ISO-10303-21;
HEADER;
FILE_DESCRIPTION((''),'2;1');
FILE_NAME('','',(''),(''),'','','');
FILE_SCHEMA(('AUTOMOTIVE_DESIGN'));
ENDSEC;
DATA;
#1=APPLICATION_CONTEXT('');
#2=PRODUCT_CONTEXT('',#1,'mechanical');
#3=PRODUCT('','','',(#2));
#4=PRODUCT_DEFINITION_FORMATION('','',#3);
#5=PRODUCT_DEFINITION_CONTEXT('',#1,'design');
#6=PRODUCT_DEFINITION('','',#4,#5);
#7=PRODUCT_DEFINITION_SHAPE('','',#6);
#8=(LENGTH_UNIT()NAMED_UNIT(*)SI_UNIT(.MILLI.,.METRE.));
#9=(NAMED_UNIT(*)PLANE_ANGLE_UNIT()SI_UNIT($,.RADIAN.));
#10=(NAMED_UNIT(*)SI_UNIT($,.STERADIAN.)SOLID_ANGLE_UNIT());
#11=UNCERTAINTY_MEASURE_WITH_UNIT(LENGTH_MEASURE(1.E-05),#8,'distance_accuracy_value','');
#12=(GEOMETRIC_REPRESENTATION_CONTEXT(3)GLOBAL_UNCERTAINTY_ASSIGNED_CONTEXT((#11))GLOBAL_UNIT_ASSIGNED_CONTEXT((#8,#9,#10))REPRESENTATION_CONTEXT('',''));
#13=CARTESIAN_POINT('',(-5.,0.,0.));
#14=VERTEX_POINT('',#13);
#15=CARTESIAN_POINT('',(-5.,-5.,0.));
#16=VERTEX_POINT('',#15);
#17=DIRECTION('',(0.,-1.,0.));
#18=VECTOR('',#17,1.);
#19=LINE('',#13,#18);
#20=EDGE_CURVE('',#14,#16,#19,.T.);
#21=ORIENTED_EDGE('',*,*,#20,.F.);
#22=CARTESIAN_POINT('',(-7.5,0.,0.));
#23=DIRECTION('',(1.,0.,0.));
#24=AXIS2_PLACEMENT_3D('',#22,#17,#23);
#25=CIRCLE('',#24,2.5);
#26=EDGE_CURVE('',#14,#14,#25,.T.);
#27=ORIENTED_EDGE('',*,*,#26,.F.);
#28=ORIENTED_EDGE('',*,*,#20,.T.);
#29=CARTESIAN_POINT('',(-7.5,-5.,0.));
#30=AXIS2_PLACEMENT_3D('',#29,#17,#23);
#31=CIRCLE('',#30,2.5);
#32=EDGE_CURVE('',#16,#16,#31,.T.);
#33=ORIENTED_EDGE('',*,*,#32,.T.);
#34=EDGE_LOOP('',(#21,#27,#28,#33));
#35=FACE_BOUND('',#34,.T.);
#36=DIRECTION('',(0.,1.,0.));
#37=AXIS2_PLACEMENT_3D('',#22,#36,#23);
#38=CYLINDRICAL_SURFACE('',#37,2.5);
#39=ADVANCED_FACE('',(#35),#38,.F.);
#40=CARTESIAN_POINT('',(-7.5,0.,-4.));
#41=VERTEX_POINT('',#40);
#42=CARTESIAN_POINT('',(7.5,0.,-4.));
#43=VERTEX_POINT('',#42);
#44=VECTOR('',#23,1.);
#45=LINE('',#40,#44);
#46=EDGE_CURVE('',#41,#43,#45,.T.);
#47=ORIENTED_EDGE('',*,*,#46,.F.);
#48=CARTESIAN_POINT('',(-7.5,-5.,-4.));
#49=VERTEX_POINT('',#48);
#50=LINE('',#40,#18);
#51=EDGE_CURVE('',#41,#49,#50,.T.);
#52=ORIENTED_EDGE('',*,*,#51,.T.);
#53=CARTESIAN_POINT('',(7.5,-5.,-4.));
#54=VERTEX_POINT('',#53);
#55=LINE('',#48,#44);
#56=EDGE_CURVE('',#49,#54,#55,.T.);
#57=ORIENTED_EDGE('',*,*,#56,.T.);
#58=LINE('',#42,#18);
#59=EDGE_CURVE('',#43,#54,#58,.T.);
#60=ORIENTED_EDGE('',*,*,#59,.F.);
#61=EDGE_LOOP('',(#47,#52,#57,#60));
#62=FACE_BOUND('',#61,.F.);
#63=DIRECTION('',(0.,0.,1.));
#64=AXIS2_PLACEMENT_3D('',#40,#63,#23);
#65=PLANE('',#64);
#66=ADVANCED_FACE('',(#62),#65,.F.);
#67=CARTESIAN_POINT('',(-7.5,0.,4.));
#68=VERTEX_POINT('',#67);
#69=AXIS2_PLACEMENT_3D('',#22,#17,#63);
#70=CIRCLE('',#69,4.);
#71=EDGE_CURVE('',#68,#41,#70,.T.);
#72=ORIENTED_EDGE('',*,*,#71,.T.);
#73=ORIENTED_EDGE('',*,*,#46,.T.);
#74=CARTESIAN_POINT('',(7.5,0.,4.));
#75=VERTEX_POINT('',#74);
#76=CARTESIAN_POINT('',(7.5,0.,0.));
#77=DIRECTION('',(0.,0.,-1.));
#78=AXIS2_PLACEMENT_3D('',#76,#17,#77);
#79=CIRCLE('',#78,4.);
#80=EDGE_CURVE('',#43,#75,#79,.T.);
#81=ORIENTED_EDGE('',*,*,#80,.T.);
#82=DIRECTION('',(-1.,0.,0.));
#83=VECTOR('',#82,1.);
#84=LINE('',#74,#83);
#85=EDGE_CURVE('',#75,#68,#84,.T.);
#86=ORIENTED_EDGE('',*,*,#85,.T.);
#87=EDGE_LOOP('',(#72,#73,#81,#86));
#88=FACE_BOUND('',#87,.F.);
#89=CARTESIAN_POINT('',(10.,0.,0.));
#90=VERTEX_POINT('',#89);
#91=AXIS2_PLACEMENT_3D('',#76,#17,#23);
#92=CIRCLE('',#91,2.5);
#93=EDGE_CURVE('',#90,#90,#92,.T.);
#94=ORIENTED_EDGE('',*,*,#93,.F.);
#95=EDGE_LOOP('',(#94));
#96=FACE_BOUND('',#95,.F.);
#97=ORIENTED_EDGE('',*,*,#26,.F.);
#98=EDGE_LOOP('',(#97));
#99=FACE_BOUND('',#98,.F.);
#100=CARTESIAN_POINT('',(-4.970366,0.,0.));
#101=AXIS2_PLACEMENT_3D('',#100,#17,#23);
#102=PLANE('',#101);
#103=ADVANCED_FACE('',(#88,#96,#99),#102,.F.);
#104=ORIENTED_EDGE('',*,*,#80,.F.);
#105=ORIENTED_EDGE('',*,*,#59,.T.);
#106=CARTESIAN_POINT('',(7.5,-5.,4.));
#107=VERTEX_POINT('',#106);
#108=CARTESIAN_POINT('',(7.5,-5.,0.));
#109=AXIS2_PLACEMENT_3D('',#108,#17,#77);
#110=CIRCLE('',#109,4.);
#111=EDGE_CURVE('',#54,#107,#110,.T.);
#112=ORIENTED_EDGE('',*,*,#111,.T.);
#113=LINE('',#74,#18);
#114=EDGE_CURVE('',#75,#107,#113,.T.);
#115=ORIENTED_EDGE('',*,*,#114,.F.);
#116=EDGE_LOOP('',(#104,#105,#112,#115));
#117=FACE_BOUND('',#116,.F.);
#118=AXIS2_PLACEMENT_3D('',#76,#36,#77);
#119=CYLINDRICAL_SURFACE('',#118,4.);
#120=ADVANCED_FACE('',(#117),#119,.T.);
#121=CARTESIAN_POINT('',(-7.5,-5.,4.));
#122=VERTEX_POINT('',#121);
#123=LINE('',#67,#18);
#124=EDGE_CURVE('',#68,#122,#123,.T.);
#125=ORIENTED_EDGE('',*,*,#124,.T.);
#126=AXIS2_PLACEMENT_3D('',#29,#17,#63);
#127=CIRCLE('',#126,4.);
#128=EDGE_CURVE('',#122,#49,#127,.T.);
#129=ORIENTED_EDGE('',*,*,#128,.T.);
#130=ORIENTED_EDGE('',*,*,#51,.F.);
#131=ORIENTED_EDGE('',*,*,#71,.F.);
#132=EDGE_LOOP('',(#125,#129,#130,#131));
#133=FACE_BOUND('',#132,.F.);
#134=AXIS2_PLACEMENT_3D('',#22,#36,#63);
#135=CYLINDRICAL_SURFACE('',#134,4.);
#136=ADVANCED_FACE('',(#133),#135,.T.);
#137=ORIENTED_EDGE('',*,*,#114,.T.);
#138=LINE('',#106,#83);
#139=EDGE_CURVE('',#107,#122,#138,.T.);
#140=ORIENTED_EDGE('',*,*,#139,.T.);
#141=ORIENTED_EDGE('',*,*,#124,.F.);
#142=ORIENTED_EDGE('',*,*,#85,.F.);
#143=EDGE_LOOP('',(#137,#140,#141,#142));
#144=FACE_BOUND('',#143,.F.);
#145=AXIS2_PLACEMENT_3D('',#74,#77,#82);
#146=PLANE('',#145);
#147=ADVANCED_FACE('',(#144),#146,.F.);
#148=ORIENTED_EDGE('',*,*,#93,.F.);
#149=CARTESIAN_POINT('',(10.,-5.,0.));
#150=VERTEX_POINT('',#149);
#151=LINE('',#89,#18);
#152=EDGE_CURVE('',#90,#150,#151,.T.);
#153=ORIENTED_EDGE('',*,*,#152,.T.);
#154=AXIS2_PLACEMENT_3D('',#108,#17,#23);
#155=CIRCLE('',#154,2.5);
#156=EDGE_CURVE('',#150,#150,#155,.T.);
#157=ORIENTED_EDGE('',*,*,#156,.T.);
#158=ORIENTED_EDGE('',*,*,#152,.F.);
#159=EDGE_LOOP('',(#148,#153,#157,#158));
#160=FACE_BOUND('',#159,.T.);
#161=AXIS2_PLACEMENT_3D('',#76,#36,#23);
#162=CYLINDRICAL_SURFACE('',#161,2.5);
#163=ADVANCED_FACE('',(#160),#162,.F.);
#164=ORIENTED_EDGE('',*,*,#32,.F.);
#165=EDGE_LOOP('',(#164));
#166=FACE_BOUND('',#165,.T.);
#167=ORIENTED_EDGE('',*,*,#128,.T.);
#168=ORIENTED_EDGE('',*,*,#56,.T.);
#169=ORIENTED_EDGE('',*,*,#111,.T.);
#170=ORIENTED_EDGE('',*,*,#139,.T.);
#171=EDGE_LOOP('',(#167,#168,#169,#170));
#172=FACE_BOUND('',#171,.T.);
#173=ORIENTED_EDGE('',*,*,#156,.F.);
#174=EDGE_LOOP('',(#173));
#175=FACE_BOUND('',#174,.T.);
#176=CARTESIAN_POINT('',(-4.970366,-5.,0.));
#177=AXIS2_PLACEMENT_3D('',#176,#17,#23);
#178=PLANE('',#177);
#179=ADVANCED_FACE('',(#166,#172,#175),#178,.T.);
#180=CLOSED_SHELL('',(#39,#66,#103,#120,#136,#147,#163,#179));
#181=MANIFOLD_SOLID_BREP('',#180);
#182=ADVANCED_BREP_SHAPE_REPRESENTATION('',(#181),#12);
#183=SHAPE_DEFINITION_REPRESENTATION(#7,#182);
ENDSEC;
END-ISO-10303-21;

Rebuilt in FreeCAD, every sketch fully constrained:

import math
import FreeCAD as App
import Part
import Sketcher
Q = App.Units.Quantity

doc = App.newDocument("Part")
body = doc.addObject("PartDesign::Body", "Body")

# Sketch on XZ plane
sketch1 = body.newObject("Sketcher::SketchObject", "Sketch")
sketch1.AttachmentSupport = (doc.getObject("XZ_Plane"), [""])
sketch1.MapMode = "FlatFace"
sketch1.addGeometry(Part.ArcOfCircle(Part.Circle(App.Vector(-7.5, 0, 0), App.Vector(0, 0, 1), 4), math.radians(90), math.radians(270)), False)
sketch1.addGeometry(Part.LineSegment(App.Vector(-7.5, -4, 0), App.Vector(7.5, -4, 0)), False)
sketch1.addGeometry(Part.ArcOfCircle(Part.Circle(App.Vector(7.5, 0, 0), App.Vector(0, 0, 1), 4), math.radians(-90), math.radians(90)), False)
sketch1.addGeometry(Part.LineSegment(App.Vector(7.5, 4, 0), App.Vector(-7.5, 4, 0)), False)
sketch1.addGeometry(Part.Circle(App.Vector(-7.5, 0, 0), App.Vector(0, 0, 1), 2.5), False)
sketch1.addGeometry(Part.Circle(App.Vector(7.5, 0, 0), App.Vector(0, 0, 1), 2.5), False)
sketch1.addConstraint(Sketcher.Constraint("Tangent", 0, 2, 1, 1))
sketch1.addConstraint(Sketcher.Constraint("Tangent", 1, 2, 2, 1))
sketch1.addConstraint(Sketcher.Constraint("Tangent", 2, 2, 3, 1))
sketch1.addConstraint(Sketcher.Constraint("Tangent", 3, 2, 0, 1))
sketch1.addConstraint(Sketcher.Constraint("Horizontal", 1))
sketch1.addConstraint(Sketcher.Constraint("Horizontal", 3))
sketch1.addConstraint(Sketcher.Constraint("Coincident", 4, 3, 0, 3))
sketch1.addConstraint(Sketcher.Constraint("Coincident", 5, 3, 2, 3))
sketch1.addConstraint(Sketcher.Constraint("Equal", 4, 5))
sketch1.addConstraint(Sketcher.Constraint("Symmetric", 0, 3, 2, 3, -1, 1))
sketch1.addConstraint(Sketcher.Constraint("Diameter", 4, Q("5 mm")))
sketch1.addConstraint(Sketcher.Constraint("Radius", 0, Q("4 mm")))
sketch1.addConstraint(Sketcher.Constraint("DistanceX", 1, 1, 1, 2, Q("15 mm")))
pad1 = body.newObject("PartDesign::Pad", "Pad")
pad1.Profile = sketch1
pad1.Length = 5

doc.recompute()
